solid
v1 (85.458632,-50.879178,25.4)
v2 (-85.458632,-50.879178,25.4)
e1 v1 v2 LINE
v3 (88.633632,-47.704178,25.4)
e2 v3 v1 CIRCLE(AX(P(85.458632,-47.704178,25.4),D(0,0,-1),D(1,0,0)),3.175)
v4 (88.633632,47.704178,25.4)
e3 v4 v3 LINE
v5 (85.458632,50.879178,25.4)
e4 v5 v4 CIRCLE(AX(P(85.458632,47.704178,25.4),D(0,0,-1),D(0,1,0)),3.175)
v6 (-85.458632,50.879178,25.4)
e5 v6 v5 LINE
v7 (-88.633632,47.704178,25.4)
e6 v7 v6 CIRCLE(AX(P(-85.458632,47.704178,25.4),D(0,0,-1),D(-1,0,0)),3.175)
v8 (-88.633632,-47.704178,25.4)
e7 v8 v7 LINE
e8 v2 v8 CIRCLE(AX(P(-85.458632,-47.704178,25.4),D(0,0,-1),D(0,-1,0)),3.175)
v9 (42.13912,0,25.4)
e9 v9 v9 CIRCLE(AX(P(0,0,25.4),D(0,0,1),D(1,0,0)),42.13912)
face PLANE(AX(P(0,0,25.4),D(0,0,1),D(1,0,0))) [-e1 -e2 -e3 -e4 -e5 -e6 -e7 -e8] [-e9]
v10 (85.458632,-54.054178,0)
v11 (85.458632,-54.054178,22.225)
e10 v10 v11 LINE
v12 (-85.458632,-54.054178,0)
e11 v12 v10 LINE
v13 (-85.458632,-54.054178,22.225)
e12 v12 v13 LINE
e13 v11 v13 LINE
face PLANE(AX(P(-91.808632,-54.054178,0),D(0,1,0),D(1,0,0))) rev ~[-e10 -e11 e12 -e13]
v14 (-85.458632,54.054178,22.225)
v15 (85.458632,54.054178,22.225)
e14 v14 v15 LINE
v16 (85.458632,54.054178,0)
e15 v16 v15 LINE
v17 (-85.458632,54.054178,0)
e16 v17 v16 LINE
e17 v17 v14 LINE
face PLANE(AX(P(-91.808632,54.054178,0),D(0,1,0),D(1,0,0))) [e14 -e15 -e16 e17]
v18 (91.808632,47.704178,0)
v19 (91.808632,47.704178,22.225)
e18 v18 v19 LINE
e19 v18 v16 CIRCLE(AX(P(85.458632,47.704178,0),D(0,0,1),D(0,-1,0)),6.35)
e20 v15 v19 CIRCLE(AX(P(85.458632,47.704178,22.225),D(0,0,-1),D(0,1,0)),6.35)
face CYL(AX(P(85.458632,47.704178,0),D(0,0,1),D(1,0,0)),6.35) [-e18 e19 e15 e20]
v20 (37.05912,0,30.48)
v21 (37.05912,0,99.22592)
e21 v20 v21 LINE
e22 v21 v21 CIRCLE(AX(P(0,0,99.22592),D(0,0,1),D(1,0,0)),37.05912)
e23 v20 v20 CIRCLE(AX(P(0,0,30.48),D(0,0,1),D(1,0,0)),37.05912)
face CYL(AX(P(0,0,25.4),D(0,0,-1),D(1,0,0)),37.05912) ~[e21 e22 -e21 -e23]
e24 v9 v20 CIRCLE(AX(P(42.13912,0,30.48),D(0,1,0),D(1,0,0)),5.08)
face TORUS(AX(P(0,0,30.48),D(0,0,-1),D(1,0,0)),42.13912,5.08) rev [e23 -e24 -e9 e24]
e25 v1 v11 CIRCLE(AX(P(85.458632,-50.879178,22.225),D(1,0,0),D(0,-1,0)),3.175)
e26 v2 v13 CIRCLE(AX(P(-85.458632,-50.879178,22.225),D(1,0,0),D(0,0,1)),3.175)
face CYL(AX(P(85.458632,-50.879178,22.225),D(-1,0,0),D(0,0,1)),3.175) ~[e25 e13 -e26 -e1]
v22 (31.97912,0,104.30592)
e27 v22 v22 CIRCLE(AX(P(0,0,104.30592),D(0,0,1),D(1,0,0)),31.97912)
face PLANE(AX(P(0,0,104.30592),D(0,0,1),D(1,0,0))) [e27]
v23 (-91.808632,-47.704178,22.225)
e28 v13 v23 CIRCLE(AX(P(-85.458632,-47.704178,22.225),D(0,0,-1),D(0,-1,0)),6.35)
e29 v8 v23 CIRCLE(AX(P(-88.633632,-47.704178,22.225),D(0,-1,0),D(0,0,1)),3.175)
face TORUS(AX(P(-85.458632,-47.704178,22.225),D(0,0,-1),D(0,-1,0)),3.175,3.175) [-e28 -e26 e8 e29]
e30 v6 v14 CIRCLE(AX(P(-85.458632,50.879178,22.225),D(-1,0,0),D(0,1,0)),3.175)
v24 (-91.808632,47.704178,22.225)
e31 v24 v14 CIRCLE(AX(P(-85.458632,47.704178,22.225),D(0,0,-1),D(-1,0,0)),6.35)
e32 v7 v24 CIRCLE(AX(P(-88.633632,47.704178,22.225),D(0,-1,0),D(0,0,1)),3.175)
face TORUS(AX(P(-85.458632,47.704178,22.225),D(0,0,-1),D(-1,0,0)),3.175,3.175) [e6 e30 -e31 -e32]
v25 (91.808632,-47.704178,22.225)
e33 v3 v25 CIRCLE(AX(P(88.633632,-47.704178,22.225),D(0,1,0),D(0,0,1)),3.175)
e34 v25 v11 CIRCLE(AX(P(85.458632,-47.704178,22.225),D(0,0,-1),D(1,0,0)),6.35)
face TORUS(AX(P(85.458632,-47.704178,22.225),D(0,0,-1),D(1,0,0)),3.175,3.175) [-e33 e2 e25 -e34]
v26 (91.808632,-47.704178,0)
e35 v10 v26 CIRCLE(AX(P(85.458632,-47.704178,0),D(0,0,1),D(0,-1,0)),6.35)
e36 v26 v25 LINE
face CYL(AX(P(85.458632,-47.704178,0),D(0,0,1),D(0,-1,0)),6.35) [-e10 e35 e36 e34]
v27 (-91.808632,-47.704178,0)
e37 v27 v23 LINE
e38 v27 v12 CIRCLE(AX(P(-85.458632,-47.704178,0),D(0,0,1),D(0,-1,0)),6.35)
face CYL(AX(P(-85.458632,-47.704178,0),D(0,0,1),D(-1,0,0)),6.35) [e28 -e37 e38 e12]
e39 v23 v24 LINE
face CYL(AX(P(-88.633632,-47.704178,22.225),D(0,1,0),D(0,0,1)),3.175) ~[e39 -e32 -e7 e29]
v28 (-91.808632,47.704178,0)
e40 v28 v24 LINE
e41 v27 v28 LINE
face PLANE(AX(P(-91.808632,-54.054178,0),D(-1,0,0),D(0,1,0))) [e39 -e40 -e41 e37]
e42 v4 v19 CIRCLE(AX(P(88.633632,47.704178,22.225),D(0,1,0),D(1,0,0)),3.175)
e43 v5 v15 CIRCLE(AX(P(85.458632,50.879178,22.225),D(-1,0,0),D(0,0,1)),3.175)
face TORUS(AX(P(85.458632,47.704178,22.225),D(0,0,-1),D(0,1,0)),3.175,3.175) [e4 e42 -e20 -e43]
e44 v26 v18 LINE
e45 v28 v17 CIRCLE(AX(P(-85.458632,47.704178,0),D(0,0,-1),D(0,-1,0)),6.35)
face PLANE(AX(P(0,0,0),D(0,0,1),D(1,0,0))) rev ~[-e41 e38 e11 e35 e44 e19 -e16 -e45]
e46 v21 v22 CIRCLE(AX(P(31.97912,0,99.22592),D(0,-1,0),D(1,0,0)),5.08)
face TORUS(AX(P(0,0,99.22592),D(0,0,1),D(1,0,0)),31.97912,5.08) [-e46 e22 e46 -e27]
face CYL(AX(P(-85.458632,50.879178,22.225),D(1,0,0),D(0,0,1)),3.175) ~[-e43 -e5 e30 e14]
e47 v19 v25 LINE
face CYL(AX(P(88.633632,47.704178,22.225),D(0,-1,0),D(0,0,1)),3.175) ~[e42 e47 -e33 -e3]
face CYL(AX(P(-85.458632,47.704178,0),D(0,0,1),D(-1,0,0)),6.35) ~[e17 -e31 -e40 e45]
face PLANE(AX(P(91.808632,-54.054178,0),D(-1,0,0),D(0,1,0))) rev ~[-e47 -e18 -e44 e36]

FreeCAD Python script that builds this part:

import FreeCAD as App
import Part
import Sketcher


def edges_at(feature, points):
    """Names of the edges that pass closest to the given points."""
    edges = feature.Shape.Edges
    near = lambda p: min(range(len(edges)), key=lambda i: edges[i].distToShape(Part.Vertex(*p))[0])
    return sorted({f"Edge{near(p) + 1}" for p in points})


def add_polygon(sketch, points):
    """Adds a closed chain of lines whose ends are joined by coincident constraints."""
    first, n = sketch.GeometryCount, len(points)
    for a, b in zip(points, points[1:] + points[:1]):
        sketch.addGeometry(Part.LineSegment(App.Vector(*a, 0), App.Vector(*b, 0)), False)
    for i in range(n):
        sketch.addConstraint(Sketcher.Constraint("Coincident", first + i, 2, first + (i + 1) % n, 1))

doc = App.newDocument("Part")
params = doc.addObject("Spreadsheet::Sheet", "Params")
for row, (alias, value) in enumerate([
    ("pad1_length", "1 in"),
    ("fillet_radius", "0.25 in"),
    ("pad2_length", "78.90592 mm"),
    ("fillet2_radius", "0.2 in"),
    ("fillet3_radius", "0.125 in"),
], start=1):
    params.set(f"A{row}", alias)
    params.set(f"B{row}", "=" + value)
    params.setAlias(f"B{row}", alias)

body = doc.addObject("PartDesign::Body", "Body")

# Sketch on XY plane
sketch1 = body.newObject("Sketcher::SketchObject", "Sketch")
sketch1.AttachmentSupport = (doc.getObject("XY_Plane"), [""])
sketch1.MapMode = "FlatFace"
add_polygon(sketch1, [(-92, 54), (-92, -54), (92, -54), (92, 54)])  # lines 0-3
sketch1.addConstraint([
    Sketcher.Constraint("Vertical", 0),
    Sketcher.Constraint("Horizontal", 1),
    Sketcher.Constraint("Vertical", 2),
    Sketcher.Constraint("Horizontal", 3),
    Sketcher.Constraint("Symmetric", 0, 2, 2, 2, -1, 1),
    Sketcher.Constraint("DistanceX", 1, 1, 1, 2, 183.617264),
    Sketcher.Constraint("DistanceY", 0, 2, 0, 1, 108.108356),
])
pad1 = body.newObject("PartDesign::Pad", "Pad")
pad1.Profile = sketch1
pad1.setExpression("Length", "Params.pad1_length")
doc.recompute()

fillet = body.newObject("PartDesign::Fillet", "Fillet")
fillet.Base = (pad1, edges_at(pad1, [
    (-91.809, -54.054, 12.7),
    (91.809, -54.054, 12.7),
    (91.809, 54.054, 12.7),
    (-91.809, 54.054, 12.7),
]))
fillet.setExpression("Radius", "Params.fillet_radius")

# Sketch on XY plane
sketch2 = body.newObject("Sketcher::SketchObject", "Sketch001")
sketch2.AttachmentSupport = (doc.getObject("XY_Plane"), [""])
sketch2.MapMode = "FlatFace"
sketch2.AttachmentOffset = App.Placement(App.Vector(0, 0, 1 * 25.4), App.Rotation())
sketch2.addGeometry(Part.Circle(App.Vector(0, 0, 0), App.Vector(0, 0, 1), 37), False)
sketch2.addConstraint([
    Sketcher.Constraint("Coincident", 0, 3, -1, 1),
    Sketcher.Constraint("Diameter", 0, 74.11824),
])
pad2 = body.newObject("PartDesign::Pad", "Pad001")
pad2.Profile = sketch2
pad2.setExpression("Length", "Params.pad2_length")
doc.recompute()

fillet2 = body.newObject("PartDesign::Fillet", "Fillet001")
fillet2.Base = (pad2, edges_at(pad2, [(37.059, 0, 64.853), (-37.059, 0, 25.4), (-37.059, 0, 104.306)]))
fillet2.setExpression("Radius", "Params.fillet2_radius")
doc.recompute()

fillet3 = body.newObject("PartDesign::Fillet", "Fillet002")
fillet3.Base = (fillet2, edges_at(fillet2, [(-31.979, 0, 104.306), (-91.809, 0, 25.4)]))
fillet3.setExpression("Radius", "Params.fillet3_radius")

doc.recompute()
